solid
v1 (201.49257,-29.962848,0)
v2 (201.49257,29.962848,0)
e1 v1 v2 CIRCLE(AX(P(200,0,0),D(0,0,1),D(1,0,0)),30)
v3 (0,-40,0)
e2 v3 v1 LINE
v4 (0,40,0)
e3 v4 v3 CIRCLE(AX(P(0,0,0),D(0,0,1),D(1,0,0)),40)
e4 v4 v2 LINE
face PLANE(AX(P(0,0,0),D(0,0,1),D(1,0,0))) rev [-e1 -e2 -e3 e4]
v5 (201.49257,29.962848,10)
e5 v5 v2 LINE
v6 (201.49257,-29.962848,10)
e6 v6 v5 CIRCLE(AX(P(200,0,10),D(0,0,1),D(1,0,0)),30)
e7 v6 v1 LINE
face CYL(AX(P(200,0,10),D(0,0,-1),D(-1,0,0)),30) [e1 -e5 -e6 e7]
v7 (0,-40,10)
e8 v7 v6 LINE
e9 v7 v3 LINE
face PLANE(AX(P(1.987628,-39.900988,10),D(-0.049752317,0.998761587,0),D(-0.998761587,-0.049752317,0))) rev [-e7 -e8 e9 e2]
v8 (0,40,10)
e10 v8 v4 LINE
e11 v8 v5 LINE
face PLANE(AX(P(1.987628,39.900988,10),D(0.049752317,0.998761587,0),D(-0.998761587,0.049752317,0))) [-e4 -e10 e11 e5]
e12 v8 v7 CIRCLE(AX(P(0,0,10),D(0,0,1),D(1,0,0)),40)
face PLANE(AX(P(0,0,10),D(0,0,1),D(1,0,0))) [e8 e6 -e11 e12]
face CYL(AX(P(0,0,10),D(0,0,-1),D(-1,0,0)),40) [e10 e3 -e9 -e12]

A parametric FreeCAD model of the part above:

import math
import FreeCAD as App
import Part
import Sketcher

V = App.Vector
Q = App.Units.Quantity

doc = App.newDocument("Part")
body = doc.addObject("PartDesign::Body", "Body")

# Sketch on XY plane
sketch1 = body.newObject("Sketcher::SketchObject", "Sketch")
sketch1.AttachmentSupport = (doc.getObject("XY_Plane"), [""])
sketch1.MapMode = "FlatFace"
sketch1.addGeometry(Part.LineSegment(V(201, 30, 0), V(0, 40, 0)), False)
sketch1.addGeometry(Part.ArcOfCircle(Part.Circle(V(0, 0, 0), V(0, 0, 1), 40), math.radians(90), math.radians(270)), False)
sketch1.addGeometry(Part.LineSegment(V(0, -40, 0), V(201, -30, 0)), False)
sketch1.addGeometry(Part.ArcOfCircle(Part.Circle(V(200, 0, 0), V(0, 0, 1), 30), math.radians(-87), math.radians(87)), False)
sketch1.addConstraint(Sketcher.Constraint("Coincident", 0, 2, 1, 1))
sketch1.addConstraint(Sketcher.Constraint("Coincident", 1, 2, 2, 1))
sketch1.addConstraint(Sketcher.Constraint("Tangent", 2, 2, 3, 1))
sketch1.addConstraint(Sketcher.Constraint("Tangent", 3, 2, 0, 1))
sketch1.addConstraint(Sketcher.Constraint("Coincident", 1, 3, -1, 1))
sketch1.addConstraint(Sketcher.Constraint("Symmetric", 2, 2, 3, 2, -1))
sketch1.addConstraint(Sketcher.Constraint("PointOnObject", 0, 2, -2))
sketch1.addConstraint(Sketcher.Constraint("Radius", 1, Q("40 mm")))
sketch1.addConstraint(Sketcher.Constraint("Radius", 3, Q("30 mm")))
sketch1.addConstraint(Sketcher.Constraint("DistanceX", -1, 1, 3, 3, Q("200 mm")))
pad1 = body.newObject("PartDesign::Pad", "Pad")
pad1.Profile = sketch1
pad1.Length = 10

doc.recompute()
